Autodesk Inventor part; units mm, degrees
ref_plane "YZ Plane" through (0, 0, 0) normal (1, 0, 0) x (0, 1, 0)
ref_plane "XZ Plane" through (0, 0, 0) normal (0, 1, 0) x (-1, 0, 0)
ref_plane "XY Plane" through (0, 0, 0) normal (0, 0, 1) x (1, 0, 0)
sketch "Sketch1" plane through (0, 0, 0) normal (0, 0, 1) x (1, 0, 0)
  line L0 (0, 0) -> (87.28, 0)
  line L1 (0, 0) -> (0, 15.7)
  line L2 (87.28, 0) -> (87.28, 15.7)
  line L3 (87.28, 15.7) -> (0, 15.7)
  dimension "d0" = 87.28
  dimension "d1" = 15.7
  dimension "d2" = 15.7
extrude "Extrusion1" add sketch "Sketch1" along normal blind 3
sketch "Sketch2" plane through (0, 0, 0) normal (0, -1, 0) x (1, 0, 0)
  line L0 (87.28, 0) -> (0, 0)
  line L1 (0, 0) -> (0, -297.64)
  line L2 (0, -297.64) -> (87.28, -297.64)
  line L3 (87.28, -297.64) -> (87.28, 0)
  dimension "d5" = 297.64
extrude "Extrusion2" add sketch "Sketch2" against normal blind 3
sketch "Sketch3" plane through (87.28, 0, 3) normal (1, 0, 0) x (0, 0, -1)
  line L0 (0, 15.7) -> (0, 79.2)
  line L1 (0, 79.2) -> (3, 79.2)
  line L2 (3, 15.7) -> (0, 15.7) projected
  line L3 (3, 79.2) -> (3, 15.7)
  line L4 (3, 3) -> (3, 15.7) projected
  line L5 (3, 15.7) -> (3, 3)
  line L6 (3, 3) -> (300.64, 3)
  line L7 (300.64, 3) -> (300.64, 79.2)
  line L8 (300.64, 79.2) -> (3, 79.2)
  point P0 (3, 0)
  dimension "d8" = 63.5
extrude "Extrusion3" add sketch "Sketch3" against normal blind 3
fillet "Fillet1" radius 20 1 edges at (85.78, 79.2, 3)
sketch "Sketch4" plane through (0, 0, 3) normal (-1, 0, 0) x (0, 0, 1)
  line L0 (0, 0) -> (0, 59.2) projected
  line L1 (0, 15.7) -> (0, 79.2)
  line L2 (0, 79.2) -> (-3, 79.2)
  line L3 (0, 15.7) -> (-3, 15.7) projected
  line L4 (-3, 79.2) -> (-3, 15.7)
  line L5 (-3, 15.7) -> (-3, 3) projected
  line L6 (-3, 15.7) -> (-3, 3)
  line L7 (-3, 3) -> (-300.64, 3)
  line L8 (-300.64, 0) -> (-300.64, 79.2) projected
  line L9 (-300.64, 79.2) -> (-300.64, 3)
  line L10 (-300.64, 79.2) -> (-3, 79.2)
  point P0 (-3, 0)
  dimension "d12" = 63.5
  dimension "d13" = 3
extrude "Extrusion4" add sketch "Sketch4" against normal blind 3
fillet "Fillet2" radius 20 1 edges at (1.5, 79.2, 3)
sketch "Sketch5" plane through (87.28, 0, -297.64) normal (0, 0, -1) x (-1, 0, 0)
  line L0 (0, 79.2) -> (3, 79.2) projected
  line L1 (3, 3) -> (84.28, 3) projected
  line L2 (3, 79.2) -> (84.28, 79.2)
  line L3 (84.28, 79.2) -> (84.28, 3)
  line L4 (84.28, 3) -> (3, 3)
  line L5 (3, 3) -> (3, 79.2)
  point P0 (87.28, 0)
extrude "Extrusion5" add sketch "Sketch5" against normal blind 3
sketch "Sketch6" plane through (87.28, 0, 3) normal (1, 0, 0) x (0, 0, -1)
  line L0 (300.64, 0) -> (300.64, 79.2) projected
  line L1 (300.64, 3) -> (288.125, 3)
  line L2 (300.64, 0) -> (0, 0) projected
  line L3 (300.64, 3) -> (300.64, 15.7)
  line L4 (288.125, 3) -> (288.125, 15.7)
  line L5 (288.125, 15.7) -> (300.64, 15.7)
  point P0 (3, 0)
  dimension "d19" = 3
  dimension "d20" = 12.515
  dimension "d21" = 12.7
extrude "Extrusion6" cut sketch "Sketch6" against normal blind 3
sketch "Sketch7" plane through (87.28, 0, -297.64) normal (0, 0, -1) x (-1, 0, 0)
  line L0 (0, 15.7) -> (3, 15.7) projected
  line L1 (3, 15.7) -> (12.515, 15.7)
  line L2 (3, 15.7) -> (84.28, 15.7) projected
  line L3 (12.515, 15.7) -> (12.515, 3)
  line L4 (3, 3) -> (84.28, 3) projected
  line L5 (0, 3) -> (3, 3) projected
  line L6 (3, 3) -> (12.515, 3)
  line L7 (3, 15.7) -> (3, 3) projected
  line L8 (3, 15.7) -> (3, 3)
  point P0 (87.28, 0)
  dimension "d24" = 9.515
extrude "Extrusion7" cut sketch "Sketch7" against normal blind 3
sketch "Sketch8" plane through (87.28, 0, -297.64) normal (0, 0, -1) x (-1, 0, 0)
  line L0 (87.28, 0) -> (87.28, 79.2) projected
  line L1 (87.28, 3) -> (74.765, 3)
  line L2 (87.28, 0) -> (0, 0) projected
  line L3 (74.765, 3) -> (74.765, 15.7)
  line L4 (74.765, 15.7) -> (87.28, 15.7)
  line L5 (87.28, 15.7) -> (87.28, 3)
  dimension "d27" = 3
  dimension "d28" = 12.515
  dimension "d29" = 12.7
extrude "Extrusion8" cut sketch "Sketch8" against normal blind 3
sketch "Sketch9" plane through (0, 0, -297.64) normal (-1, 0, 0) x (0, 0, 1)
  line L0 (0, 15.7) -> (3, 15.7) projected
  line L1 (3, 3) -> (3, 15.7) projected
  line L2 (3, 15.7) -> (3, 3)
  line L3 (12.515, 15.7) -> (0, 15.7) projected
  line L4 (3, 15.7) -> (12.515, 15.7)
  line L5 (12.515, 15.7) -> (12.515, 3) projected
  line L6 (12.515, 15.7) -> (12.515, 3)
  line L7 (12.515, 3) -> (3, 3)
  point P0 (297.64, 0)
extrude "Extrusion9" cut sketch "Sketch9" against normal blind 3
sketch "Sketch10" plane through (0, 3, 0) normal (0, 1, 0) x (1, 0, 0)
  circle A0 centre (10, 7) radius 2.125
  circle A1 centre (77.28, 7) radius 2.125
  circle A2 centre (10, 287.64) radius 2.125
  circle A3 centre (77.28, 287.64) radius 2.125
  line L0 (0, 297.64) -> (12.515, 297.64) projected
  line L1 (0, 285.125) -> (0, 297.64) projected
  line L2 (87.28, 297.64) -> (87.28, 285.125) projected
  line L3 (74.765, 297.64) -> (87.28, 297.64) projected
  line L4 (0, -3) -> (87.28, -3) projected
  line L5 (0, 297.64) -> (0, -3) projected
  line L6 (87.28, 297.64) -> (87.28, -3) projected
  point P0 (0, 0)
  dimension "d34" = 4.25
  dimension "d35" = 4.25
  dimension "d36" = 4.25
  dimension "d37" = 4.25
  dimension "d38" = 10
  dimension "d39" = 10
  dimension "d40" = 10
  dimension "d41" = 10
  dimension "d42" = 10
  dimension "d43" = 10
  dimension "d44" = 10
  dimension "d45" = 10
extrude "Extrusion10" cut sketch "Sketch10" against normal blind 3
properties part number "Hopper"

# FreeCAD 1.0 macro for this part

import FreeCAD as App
import Part
import Sketcher

V = App.Vector
Q = App.Units.Quantity


def edges_at(feature, points):
    """Names of the edges that pass closest to the given points."""
    edges = feature.Shape.Edges
    near = lambda p: min(range(len(edges)), key=lambda i: edges[i].distToShape(Part.Vertex(*p))[0])
    return sorted({f"Edge{near(p) + 1}" for p in points})

doc = App.newDocument("Part")
body = doc.addObject("PartDesign::Body", "Body")

# Sketch on XY plane
sketch1 = body.newObject("Sketcher::SketchObject", "Sketch")
sketch1.AttachmentSupport = (doc.getObject("XY_Plane"), [""])
sketch1.MapMode = "FlatFace"
sketch1.addGeometry([
    Part.LineSegment(V(0, 16, 0), V(0, 0, 0)),
    Part.LineSegment(V(0, 0, 0), V(87, 0, 0)),
    Part.LineSegment(V(87, 0, 0), V(87, 16, 0)),
    Part.LineSegment(V(87, 16, 0), V(0, 16, 0)),
], False)
sketch1.addConstraint([
    Sketcher.Constraint("Coincident", 0, 2, 1, 1),
    Sketcher.Constraint("Coincident", 1, 2, 2, 1),
    Sketcher.Constraint("Coincident", 2, 2, 3, 1),
    Sketcher.Constraint("Coincident", 3, 2, 0, 1),
    Sketcher.Constraint("Vertical", 0),
    Sketcher.Constraint("Horizontal", 1),
    Sketcher.Constraint("Vertical", 2),
    Sketcher.Constraint("Horizontal", 3),
    Sketcher.Constraint("Coincident", 0, 2, -1, 1),
    Sketcher.Constraint("DistanceY", 0, 2, 0, 1, Q("0.6181 in")),
    Sketcher.Constraint("DistanceX", 1, 1, 1, 2, 87.28),
])
pad1 = body.newObject("PartDesign::Pad", "Pad")
pad1.Profile = sketch1
pad1.Length = Q("0.1181102 in")

# Sketch on XZ plane
sketch2 = body.newObject("Sketcher::SketchObject", "Sketch001")
sketch2.AttachmentSupport = (doc.getObject("XZ_Plane"), [""])
sketch2.MapMode = "FlatFace"
sketch2.addGeometry([
    Part.LineSegment(V(87, -298, 0), V(87, 0, 0)),
    Part.LineSegment(V(87, 0, 0), V(0, 0, 0)),
    Part.LineSegment(V(0, 0, 0), V(0, -298, 0)),
    Part.LineSegment(V(0, -298, 0), V(87, -298, 0)),
], False)
sketch2.addConstraint([
    Sketcher.Constraint("Coincident", 0, 2, 1, 1),
    Sketcher.Constraint("Coincident", 1, 2, 2, 1),
    Sketcher.Constraint("Coincident", 2, 2, 3, 1),
    Sketcher.Constraint("Coincident", 3, 2, 0, 1),
    Sketcher.Constraint("Vertical", 0),
    Sketcher.Constraint("Horizontal", 1),
    Sketcher.Constraint("Vertical", 2),
    Sketcher.Constraint("Horizontal", 3),
    Sketcher.Constraint("Coincident", 1, 2, -1, 1),
    Sketcher.Constraint("DistanceY", 0, 1, 0, 2, Q("11.7181 in")),
    Sketcher.Constraint("DistanceX", 1, 2, 1, 1, 87.28),
])
pad2 = body.newObject("PartDesign::Pad", "Pad001")
pad2.Profile = sketch2
pad2.Length = Q("0.1181102 in")
pad2.Reversed = True

# Sketch on YZ plane
sketch3 = body.newObject("Sketcher::SketchObject", "Sketch002")
sketch3.AttachmentSupport = (doc.getObject("YZ_Plane"), [""])
sketch3.MapMode = "FlatFace"
sketch3.AttachmentOffset = App.Placement(V(0, 0, 87.28), App.Rotation())
sketch3.addGeometry([
    Part.LineSegment(V(79.2, 3, 0), V(15.7, 3, 0)),  # 0
    Part.LineSegment(V(15.7, 3, 0), V(15.7, 0, 0)),  # 1
    Part.LineSegment(V(15.7, 0, 0), V(3, 0, 0)),  # 2
    Part.LineSegment(V(3, 0, 0), V(3, -297.6, 0)),  # 3
    Part.LineSegment(V(3, -297.6, 0), V(79.2, -297.6, 0)),  # 4
    Part.LineSegment(V(79.2, -297.6, 0), V(79.2, 3, 0)),  # 5
], False)
sketch3.addConstraint([
    Sketcher.Constraint("Coincident", 0, 2, 1, 1),
    Sketcher.Constraint("Coincident", 1, 2, 2, 1),
    Sketcher.Constraint("Coincident", 2, 2, 3, 1),
    Sketcher.Constraint("Coincident", 3, 2, 4, 1),
    Sketcher.Constraint("Coincident", 4, 2, 5, 1),
    Sketcher.Constraint("Coincident", 5, 2, 0, 1),
    Sketcher.Constraint("Horizontal", 0),
    Sketcher.Constraint("Vertical", 1),
    Sketcher.Constraint("Horizontal", 2),
    Sketcher.Constraint("Vertical", 3),
    Sketcher.Constraint("Horizontal", 4),
    Sketcher.Constraint("Vertical", 5),
    Sketcher.Constraint("PointOnObject", 1, 2, -1),
    Sketcher.Constraint("DistanceX", 0, 2, 0, 1, Q("2.5 in")),
    Sketcher.Constraint("DistanceX", 4, 1, 4, 2, Q("3 in")),
    Sketcher.Constraint("DistanceY", 1, 2, 1, 1, Q("0.1181 in")),
    Sketcher.Constraint("DistanceY", 3, 2, 3, 1, Q("11.7181 in")),
    Sketcher.Constraint("DistanceX", -1, 1, 0, 2, Q("0.6181 in")),
])
pad3 = body.newObject("PartDesign::Pad", "Pad002")
pad3.Profile = sketch3
pad3.Length = Q("0.1181102 in")
pad3.Reversed = True
doc.recompute()

fillet = body.newObject("PartDesign::Fillet", "Fillet")
fillet.Base = (pad3, edges_at(pad3, [(85.78, 79.2, 3)]))
fillet.Radius = Q("0.7874016 in")

# Sketch on YZ plane
sketch4 = body.newObject("Sketcher::SketchObject", "Sketch003")
sketch4.AttachmentSupport = (doc.getObject("YZ_Plane"), [""])
sketch4.MapMode = "FlatFace"
sketch4.addGeometry([
    Part.LineSegment(V(15.7, 0, 0), V(15.7, 3, 0)),  # 0
    Part.LineSegment(V(15.7, 3, 0), V(79.2, 3, 0)),  # 1
    Part.LineSegment(V(79.2, 3, 0), V(79.2, -297.6, 0)),  # 2
    Part.LineSegment(V(79.2, -297.6, 0), V(3, -297.6, 0)),  # 3
    Part.LineSegment(V(3, -297.6, 0), V(3, 0, 0)),  # 4
    Part.LineSegment(V(3, 0, 0), V(15.7, 0, 0)),  # 5
], False)
sketch4.addConstraint([
    Sketcher.Constraint("Coincident", 0, 2, 1, 1),
    Sketcher.Constraint("Coincident", 1, 2, 2, 1),
    Sketcher.Constraint("Coincident", 2, 2, 3, 1),
    Sketcher.Constraint("Coincident", 3, 2, 4, 1),
    Sketcher.Constraint("Coincident", 4, 2, 5, 1),
    Sketcher.Constraint("Coincident", 5, 2, 0, 1),
    Sketcher.Constraint("Vertical", 0),
    Sketcher.Constraint("Horizontal", 1),
    Sketcher.Constraint("Vertical", 2),
    Sketcher.Constraint("Horizontal", 3),
    Sketcher.Constraint("Vertical", 4),
    Sketcher.Constraint("Horizontal", 5),
    Sketcher.Constraint("PointOnObject", 4, 2, -1),
    Sketcher.Constraint("DistanceX", 1, 1, 1, 2, Q("2.5 in")),
    Sketcher.Constraint("DistanceX", 3, 2, 3, 1, Q("3 in")),
    Sketcher.Constraint("DistanceY", 0, 1, 0, 2, Q("0.1181 in")),
    Sketcher.Constraint("DistanceX", -1, 1, 3, 2, Q("0.1181 in")),
    Sketcher.Constraint("DistanceY", 4, 1, 4, 2, Q("11.7181 in")),
])
pad4 = body.newObject("PartDesign::Pad", "Pad003")
pad4.Profile = sketch4
pad4.Length = Q("0.1181102 in")
doc.recompute()

fillet2 = body.newObject("PartDesign::Fillet", "Fillet001")
fillet2.Base = (pad4, edges_at(pad4, [(1.5, 79.2, 3)]))
fillet2.Radius = Q("0.7874016 in")

# Sketch on XY plane
sketch5 = body.newObject("Sketcher::SketchObject", "Sketch004")
sketch5.AttachmentSupport = (doc.getObject("XY_Plane"), [""])
sketch5.MapMode = "FlatFace"
sketch5.AttachmentOffset = App.Placement(V(0, 0, -11.7181102 * 25.4), App.Rotation())
sketch5.addGeometry([
    Part.LineSegment(V(84, 79, 0), V(84, 3, 0)),
    Part.LineSegment(V(84, 3, 0), V(3, 3, 0)),
    Part.LineSegment(V(3, 3, 0), V(3, 79, 0)),
    Part.LineSegment(V(3, 79, 0), V(84, 79, 0)),
], False)
sketch5.addConstraint([
    Sketcher.Constraint("Coincident", 0, 2, 1, 1),
    Sketcher.Constraint("Coincident", 1, 2, 2, 1),
    Sketcher.Constraint("Coincident", 2, 2, 3, 1),
    Sketcher.Constraint("Coincident", 3, 2, 0, 1),
    Sketcher.Constraint("Vertical", 0),
    Sketcher.Constraint("Horizontal", 1),
    Sketcher.Constraint("Vertical", 2),
    Sketcher.Constraint("Horizontal", 3),
    Sketcher.Constraint("DistanceY", 0, 2, 0, 1, Q("3 in")),
    Sketcher.Constraint("DistanceX", 1, 2, 1, 1, Q("3.2 in")),
    Sketcher.Constraint("DistanceX", -1, 1, 0, 2, Q("3.3181 in")),
    Sketcher.Constraint("DistanceY", -1, 1, 0, 2, Q("0.1181 in")),
])
pad5 = body.newObject("PartDesign::Pad", "Pad004")
pad5.Profile = sketch5
pad5.Length = Q("0.1181102 in")

# Sketch on YZ plane
sketch6 = body.newObject("Sketcher::SketchObject", "Sketch005")
sketch6.AttachmentSupport = (doc.getObject("YZ_Plane"), [""])
sketch6.MapMode = "FlatFace"
sketch6.AttachmentOffset = App.Placement(V(0, 0, 87.28), App.Rotation())
sketch6.addGeometry([
    Part.LineSegment(V(3, -285, 0), V(3, -298, 0)),
    Part.LineSegment(V(3, -298, 0), V(16, -298, 0)),
    Part.LineSegment(V(16, -298, 0), V(16, -285, 0)),
    Part.LineSegment(V(16, -285, 0), V(3, -285, 0)),
], False)
sketch6.addConstraint([
    Sketcher.Constraint("Coincident", 0, 2, 1, 1),
    Sketcher.Constraint("Coincident", 1, 2, 2, 1),
    Sketcher.Constraint("Coincident", 2, 2, 3, 1),
    Sketcher.Constraint("Coincident", 3, 2, 0, 1),
    Sketcher.Constraint("Vertical", 0),
    Sketcher.Constraint("Horizontal", 1),
    Sketcher.Constraint("Vertical", 2),
    Sketcher.Constraint("Horizontal", 3),
    Sketcher.Constraint("DistanceX", 1, 1, 1, 2, Q("0.5 in")),
    Sketcher.Constraint("DistanceY", 0, 2, 0, 1, 12.515),
    Sketcher.Constraint("DistanceX", -1, 1, 0, 2, Q("0.1181 in")),
    Sketcher.Constraint("DistanceY", 0, 2, -1, 1, Q("11.7181 in")),
])
pocket1 = body.newObject("PartDesign::Pocket", "Pocket")
pocket1.Profile = sketch6
pocket1.Length = Q("0.1181102 in")

# Sketch on XY plane
sketch7 = body.newObject("Sketcher::SketchObject", "Sketch006")
sketch7.AttachmentSupport = (doc.getObject("XY_Plane"), [""])
sketch7.MapMode = "FlatFace"
sketch7.AttachmentOffset = App.Placement(V(0, 0, -11.7181102 * 25.4), App.Rotation())
sketch7.addGeometry([
    Part.LineSegment(V(75, 16, 0), V(84, 16, 0)),
    Part.LineSegment(V(84, 16, 0), V(84, 3, 0)),
    Part.LineSegment(V(84, 3, 0), V(75, 3, 0)),
    Part.LineSegment(V(75, 3, 0), V(75, 16, 0)),
], False)
sketch7.addConstraint([
    Sketcher.Constraint("Coincident", 0, 2, 1, 1),
    Sketcher.Constraint("Coincident", 1, 2, 2, 1),
    Sketcher.Constraint("Coincident", 2, 2, 3, 1),
    Sketcher.Constraint("Coincident", 3, 2, 0, 1),
    Sketcher.Constraint("Horizontal", 0),
    Sketcher.Constraint("Vertical", 1),
    Sketcher.Constraint("Horizontal", 2),
    Sketcher.Constraint("Vertical", 3),
    Sketcher.Constraint("DistanceX", 0, 1, 0, 2, Q("0.3746 in")),
    Sketcher.Constraint("DistanceY", 1, 2, 1, 1, Q("0.5 in")),
    Sketcher.Constraint("DistanceX", -1, 1, 0, 2, Q("3.3181 in")),
    Sketcher.Constraint("DistanceY", -1, 1, 0, 2, Q("0.6181 in")),
])
pocket2 = body.newObject("PartDesign::Pocket", "Pocket001")
pocket2.Profile = sketch7
pocket2.Length = Q("0.1181102 in")
pocket2.Reversed = True

# Sketch on XY plane
sketch8 = body.newObject("Sketcher::SketchObject", "Sketch007")
sketch8.AttachmentSupport = (doc.getObject("XY_Plane"), [""])
sketch8.MapMode = "FlatFace"
sketch8.AttachmentOffset = App.Placement(V(0, 0, -11.7181102 * 25.4), App.Rotation())
sketch8.addGeometry([
    Part.LineSegment(V(13, 3, 0), V(0, 3, 0)),
    Part.LineSegment(V(0, 3, 0), V(0, 16, 0)),
    Part.LineSegment(V(0, 16, 0), V(13, 16, 0)),
    Part.LineSegment(V(13, 16, 0), V(13, 3, 0)),
], False)
sketch8.addConstraint([
    Sketcher.Constraint("Coincident", 0, 2, 1, 1),
    Sketcher.Constraint("Coincident", 1, 2, 2, 1),
    Sketcher.Constraint("Coincident", 2, 2, 3, 1),
    Sketcher.Constraint("Coincident", 3, 2, 0, 1),
    Sketcher.Constraint("Horizontal", 0),
    Sketcher.Constraint("Vertical", 1),
    Sketcher.Constraint("Horizontal", 2),
    Sketcher.Constraint("Vertical", 3),
    Sketcher.Constraint("PointOnObject", 0, 2, -2),
    Sketcher.Constraint("DistanceY", 1, 1, 1, 2, Q("0.5 in")),
    Sketcher.Constraint("DistanceX", 0, 2, 0, 1, 12.515),
    Sketcher.Constraint("DistanceY", -1, 1, 0, 2, Q("0.1181 in")),
])
pocket3 = body.newObject("PartDesign::Pocket", "Pocket002")
pocket3.Profile = sketch8
pocket3.Length = Q("0.1181102 in")
pocket3.Reversed = True

# Sketch on YZ plane
sketch9 = body.newObject("Sketcher::SketchObject", "Sketch008")
sketch9.AttachmentSupport = (doc.getObject("YZ_Plane"), [""])
sketch9.MapMode = "FlatFace"
sketch9.addGeometry([
    Part.LineSegment(V(16, -295, 0), V(3, -295, 0)),
    Part.LineSegment(V(3, -295, 0), V(3, -285, 0)),
    Part.LineSegment(V(3, -285, 0), V(16, -285, 0)),
    Part.LineSegment(V(16, -285, 0), V(16, -295, 0)),
], False)
sketch9.addConstraint([
    Sketcher.Constraint("Coincident", 0, 2, 1, 1),
    Sketcher.Constraint("Coincident", 1, 2, 2, 1),
    Sketcher.Constraint("Coincident", 2, 2, 3, 1),
    Sketcher.Constraint("Coincident", 3, 2, 0, 1),
    Sketcher.Constraint("Horizontal", 0),
    Sketcher.Constraint("Vertical", 1),
    Sketcher.Constraint("Horizontal", 2),
    Sketcher.Constraint("Vertical", 3),
    Sketcher.Constraint("DistanceX", 0, 2, 0, 1, Q("0.5 in")),
    Sketcher.Constraint("DistanceY", 0, 2, -1, 1, Q("11.6 in")),
    Sketcher.Constraint("DistanceY", 1, 1, 1, 2, Q("0.3746 in")),
    Sketcher.Constraint("DistanceX", -1, 1, 0, 2, Q("0.1181 in")),
])
pocket4 = body.newObject("PartDesign::Pocket", "Pocket003")
pocket4.Profile = sketch9
pocket4.Length = Q("0.1181102 in")
pocket4.Reversed = True

# Sketch on XZ plane
sketch10 = body.newObject("Sketcher::SketchObject", "Sketch009")
sketch10.AttachmentSupport = (doc.getObject("XZ_Plane"), [""])
sketch10.MapMode = "FlatFace"
sketch10.AttachmentOffset = App.Placement(V(0, 0, -0.1181102 * 25.4), App.Rotation())
sketch10.addGeometry([
    Part.Circle(V(10, -7, 0), V(0, 0, 1), 2.1),
    Part.Circle(V(77.3, -7, 0), V(0, 0, 1), 2.1),
    Part.Circle(V(10, -287.6, 0), V(0, 0, 1), 2.1),
    Part.Circle(V(77.3, -287.6, 0), V(0, 0, 1), 2.1),
], False)
sketch10.addConstraint([
    Sketcher.Constraint("Equal", 0, 1),
    Sketcher.Constraint("Equal", 1, 2),
    Sketcher.Constraint("Equal", 2, 3),
    Sketcher.Constraint("Horizontal", 0, 3, 1, 3),
    Sketcher.Constraint("Horizontal", 2, 3, 3, 3),
    Sketcher.Constraint("Vertical", 0, 3, 2, 3),
    Sketcher.Constraint("Vertical", 1, 3, 3, 3),
    Sketcher.Constraint("Diameter", 0, 4.25),
    Sketcher.Constraint("DistanceX", -1, 1, 0, 3, Q("0.3937 in")),
    Sketcher.Constraint("DistanceY", 0, 3, -1, 1, Q("0.2756 in")),
    Sketcher.Constraint("DistanceY", 2, 3, -1, 1, Q("11.3244 in")),
    Sketcher.Constraint("DistanceX", -1, 1, 1, 3, 77.28),
])
pocket5 = body.newObject("PartDesign::Pocket", "Pocket004")
pocket5.Profile = sketch10
pocket5.Length = Q("0.1181102 in")
pocket5.Reversed = True

doc.recompute()
